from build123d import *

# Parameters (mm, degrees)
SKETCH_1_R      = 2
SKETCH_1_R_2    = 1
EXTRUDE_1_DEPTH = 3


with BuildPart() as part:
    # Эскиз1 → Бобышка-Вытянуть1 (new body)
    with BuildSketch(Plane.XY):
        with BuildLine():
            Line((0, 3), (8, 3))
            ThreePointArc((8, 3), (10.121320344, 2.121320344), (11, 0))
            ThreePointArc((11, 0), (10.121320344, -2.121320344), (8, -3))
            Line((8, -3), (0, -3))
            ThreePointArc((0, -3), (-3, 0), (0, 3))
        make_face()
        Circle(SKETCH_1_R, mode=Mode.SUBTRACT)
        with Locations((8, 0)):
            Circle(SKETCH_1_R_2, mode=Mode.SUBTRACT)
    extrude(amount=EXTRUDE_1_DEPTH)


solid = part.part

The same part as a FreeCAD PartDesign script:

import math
import FreeCAD as App
import Part
import Sketcher
Q = App.Units.Quantity

doc = App.newDocument("Part")
body = doc.addObject("PartDesign::Body", "Body")

# Sketch on XY plane
sketch1 = body.newObject("Sketcher::SketchObject", "Sketch")
sketch1.AttachmentSupport = (doc.getObject("XY_Plane"), [""])
sketch1.MapMode = "FlatFace"
sketch1.addGeometry([
    Part.LineSegment(App.Vector(8, 3, 0), App.Vector(0, 3, 0)),  # 0
    Part.ArcOfCircle(Part.Circle(App.Vector(0, 0, 0), App.Vector(0, 0, 1), 3), math.radians(90), math.radians(270)),  # 1
    Part.LineSegment(App.Vector(0, -3, 0), App.Vector(8, -3, 0)),  # 2
    Part.ArcOfCircle(Part.Circle(App.Vector(8, 0, 0), App.Vector(0, 0, 1), 3), math.radians(-90), math.radians(0)),  # 3
    Part.ArcOfCircle(Part.Circle(App.Vector(8, 0, 0), App.Vector(0, 0, 1), 3), math.radians(0), math.radians(90)),  # 4
    Part.Circle(App.Vector(8, 0, 0), App.Vector(0, 0, 1), 1),  # 5
    Part.Circle(App.Vector(0, 0, 0), App.Vector(0, 0, 1), 2),  # 6
], False)
sketch1.addConstraint([
    Sketcher.Constraint("Tangent", 0, 2, 1, 1),
    Sketcher.Constraint("Tangent", 1, 2, 2, 1),
    Sketcher.Constraint("Tangent", 2, 2, 3, 1),
    Sketcher.Constraint("Tangent", 3, 2, 4, 1),
    Sketcher.Constraint("Tangent", 4, 2, 0, 1),
    Sketcher.Constraint("Horizontal", 0),
    Sketcher.Constraint("Horizontal", 2),
    Sketcher.Constraint("Coincident", 1, 3, -1, 1),
    Sketcher.Constraint("Coincident", 6, 3, -1, 1),
    Sketcher.Constraint("Coincident", 5, 3, 3, 3),
    Sketcher.Constraint("Equal", 1, 3),
    Sketcher.Constraint("PointOnObject", 3, 2, -1),
    Sketcher.Constraint("Diameter", 5, Q("2 mm")),
    Sketcher.Constraint("Diameter", 6, Q("4 mm")),
    Sketcher.Constraint("Radius", 1, Q("3 mm")),
    Sketcher.Constraint("DistanceX", 0, 2, 0, 1, Q("8 mm")),
])
pad1 = body.newObject("PartDesign::Pad", "Pad")
pad1.Profile = sketch1
pad1.Length = 3

doc.recompute()
